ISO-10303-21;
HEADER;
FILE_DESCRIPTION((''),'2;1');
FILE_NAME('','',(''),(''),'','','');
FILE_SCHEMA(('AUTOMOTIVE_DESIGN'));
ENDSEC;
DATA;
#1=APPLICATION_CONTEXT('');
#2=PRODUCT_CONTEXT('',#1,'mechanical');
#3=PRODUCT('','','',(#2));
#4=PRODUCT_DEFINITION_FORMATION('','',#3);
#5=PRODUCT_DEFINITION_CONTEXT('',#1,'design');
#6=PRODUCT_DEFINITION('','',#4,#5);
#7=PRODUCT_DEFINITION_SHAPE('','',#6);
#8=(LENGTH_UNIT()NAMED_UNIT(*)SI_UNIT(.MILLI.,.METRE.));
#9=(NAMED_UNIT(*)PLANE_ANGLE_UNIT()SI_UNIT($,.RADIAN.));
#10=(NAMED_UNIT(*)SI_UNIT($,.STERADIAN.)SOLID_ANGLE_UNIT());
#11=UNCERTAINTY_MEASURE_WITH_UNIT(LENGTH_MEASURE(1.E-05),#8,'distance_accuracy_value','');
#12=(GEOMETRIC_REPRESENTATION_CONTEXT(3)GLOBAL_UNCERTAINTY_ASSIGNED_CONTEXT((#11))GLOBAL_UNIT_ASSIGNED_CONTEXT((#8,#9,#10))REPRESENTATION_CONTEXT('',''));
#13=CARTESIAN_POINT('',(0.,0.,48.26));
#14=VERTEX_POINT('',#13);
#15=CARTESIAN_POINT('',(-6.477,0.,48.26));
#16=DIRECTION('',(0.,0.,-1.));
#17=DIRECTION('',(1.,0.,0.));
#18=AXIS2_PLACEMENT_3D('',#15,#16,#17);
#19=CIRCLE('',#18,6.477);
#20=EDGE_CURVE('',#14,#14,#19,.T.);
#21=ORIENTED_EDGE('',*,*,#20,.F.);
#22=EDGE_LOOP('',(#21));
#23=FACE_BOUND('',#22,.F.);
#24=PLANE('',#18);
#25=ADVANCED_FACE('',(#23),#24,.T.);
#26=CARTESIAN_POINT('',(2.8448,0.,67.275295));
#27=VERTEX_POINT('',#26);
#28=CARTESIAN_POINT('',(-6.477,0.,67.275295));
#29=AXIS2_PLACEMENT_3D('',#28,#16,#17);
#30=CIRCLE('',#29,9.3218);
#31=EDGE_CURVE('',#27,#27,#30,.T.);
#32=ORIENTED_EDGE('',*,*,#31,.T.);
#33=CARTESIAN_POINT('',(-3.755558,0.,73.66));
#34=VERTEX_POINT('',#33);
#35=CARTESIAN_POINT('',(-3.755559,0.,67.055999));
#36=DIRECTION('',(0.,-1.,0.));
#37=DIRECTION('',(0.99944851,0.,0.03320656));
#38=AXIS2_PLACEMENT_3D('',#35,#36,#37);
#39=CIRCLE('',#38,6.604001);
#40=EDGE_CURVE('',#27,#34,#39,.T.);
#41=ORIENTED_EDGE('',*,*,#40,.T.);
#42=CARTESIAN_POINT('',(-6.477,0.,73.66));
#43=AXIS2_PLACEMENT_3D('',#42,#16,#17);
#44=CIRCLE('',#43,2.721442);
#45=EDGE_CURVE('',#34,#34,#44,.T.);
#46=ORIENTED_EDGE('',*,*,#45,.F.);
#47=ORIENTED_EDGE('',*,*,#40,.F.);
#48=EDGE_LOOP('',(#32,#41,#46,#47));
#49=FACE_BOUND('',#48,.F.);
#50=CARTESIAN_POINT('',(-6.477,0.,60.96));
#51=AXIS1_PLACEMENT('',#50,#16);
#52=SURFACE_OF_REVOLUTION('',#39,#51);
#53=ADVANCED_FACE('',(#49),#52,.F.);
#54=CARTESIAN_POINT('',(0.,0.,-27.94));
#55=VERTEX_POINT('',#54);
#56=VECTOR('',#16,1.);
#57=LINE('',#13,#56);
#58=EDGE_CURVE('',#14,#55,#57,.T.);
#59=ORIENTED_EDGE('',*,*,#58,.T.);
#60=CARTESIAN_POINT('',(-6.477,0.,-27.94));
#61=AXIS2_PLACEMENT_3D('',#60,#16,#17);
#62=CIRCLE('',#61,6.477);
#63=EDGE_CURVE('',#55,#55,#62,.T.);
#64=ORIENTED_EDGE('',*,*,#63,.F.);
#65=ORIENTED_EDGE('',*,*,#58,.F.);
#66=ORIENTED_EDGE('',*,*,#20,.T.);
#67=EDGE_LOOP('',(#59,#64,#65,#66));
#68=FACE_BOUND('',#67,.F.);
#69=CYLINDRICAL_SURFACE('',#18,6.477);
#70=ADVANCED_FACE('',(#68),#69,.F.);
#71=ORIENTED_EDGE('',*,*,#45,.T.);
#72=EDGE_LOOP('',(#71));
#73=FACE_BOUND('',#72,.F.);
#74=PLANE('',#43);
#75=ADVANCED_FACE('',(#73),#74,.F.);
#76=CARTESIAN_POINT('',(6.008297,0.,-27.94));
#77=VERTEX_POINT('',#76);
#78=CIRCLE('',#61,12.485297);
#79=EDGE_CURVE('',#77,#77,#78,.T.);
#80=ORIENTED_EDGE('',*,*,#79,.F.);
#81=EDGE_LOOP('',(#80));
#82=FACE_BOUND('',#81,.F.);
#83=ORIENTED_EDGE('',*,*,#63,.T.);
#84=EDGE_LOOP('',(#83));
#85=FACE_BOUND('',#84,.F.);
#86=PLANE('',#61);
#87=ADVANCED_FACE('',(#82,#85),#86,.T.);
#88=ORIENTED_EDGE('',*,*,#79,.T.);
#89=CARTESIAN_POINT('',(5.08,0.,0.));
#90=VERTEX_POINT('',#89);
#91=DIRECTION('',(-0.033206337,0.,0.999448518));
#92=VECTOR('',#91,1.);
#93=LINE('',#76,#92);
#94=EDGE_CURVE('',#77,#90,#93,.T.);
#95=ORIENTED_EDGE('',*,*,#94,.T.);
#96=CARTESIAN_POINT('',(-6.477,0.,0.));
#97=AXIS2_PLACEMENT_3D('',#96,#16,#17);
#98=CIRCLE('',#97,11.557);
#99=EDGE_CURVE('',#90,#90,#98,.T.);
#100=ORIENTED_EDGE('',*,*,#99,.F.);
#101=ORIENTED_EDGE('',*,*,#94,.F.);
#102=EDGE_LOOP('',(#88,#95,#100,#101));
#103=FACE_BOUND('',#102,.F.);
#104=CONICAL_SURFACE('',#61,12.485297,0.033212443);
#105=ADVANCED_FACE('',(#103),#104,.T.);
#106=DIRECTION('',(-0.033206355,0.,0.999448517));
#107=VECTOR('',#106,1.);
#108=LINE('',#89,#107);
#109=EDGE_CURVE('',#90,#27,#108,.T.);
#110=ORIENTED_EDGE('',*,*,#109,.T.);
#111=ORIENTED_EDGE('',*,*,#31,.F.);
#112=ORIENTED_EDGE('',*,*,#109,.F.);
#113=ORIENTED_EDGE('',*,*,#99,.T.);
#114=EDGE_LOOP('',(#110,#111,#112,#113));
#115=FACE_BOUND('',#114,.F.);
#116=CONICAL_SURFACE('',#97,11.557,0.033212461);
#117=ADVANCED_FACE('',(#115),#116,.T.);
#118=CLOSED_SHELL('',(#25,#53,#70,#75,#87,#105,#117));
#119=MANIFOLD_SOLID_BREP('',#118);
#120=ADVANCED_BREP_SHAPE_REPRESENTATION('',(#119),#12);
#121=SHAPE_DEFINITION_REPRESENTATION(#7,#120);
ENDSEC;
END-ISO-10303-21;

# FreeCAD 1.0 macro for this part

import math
import FreeCAD as App
import Part
import Sketcher

V = App.Vector
Q = App.Units.Quantity

doc = App.newDocument("Part")
body = doc.addObject("PartDesign::Body", "Body")

# Sketch on XZ plane
sketch1 = body.newObject("Sketcher::SketchObject", "Sketch")
sketch1.AttachmentSupport = (doc.getObject("XZ_Plane"), [""])
sketch1.MapMode = "FlatFace"
sketch1.addGeometry(Part.LineSegment(V(0, 48.3, 0), V(0, -27.9, 0)), False)
sketch1.addGeometry(Part.LineSegment(V(0, -27.9, 0), V(6, -27.9, 0)), False)
sketch1.addGeometry(Part.LineSegment(V(6, -27.9, 0), V(5.1, 0, 0)), False)
sketch1.addGeometry(Part.LineSegment(V(5.1, 0, 0), V(2.8, 67.3, 0)), False)
sketch1.addGeometry(Part.ArcOfCircle(Part.Circle(V(-3.8, 67.1, 0), V(0, 0, 1), 6.6), math.radians(2), math.radians(90)), False)
sketch1.addGeometry(Part.LineSegment(V(-3.8, 73.7, 0), V(-6.5, 73.7, 0)), False)
sketch1.addGeometry(Part.LineSegment(V(-6.5, 73.7, 0), V(-6.5, 48.3, 0)), False)
sketch1.addGeometry(Part.LineSegment(V(-6.5, 48.3, 0), V(0, 48.3, 0)), False)
sketch1.addGeometry(Part.LineSegment(V(-6.5, 73.7, 0), V(-6.5, -27.9, 0)), True)  # axis
sketch1.addConstraint(Sketcher.Constraint("Coincident", 0, 2, 1, 1))
sketch1.addConstraint(Sketcher.Constraint("Coincident", 1, 2, 2, 1))
sketch1.addConstraint(Sketcher.Constraint("Coincident", 2, 2, 3, 1))
sketch1.addConstraint(Sketcher.Constraint("Tangent", 3, 2, 4, 1))
sketch1.addConstraint(Sketcher.Constraint("Tangent", 4, 2, 5, 1))
sketch1.addConstraint(Sketcher.Constraint("Coincident", 5, 2, 6, 1))
sketch1.addConstraint(Sketcher.Constraint("Coincident", 6, 2, 7, 1))
sketch1.addConstraint(Sketcher.Constraint("Coincident", 7, 2, 0, 1))
sketch1.addConstraint(Sketcher.Constraint("Vertical", 0))
sketch1.addConstraint(Sketcher.Constraint("Horizontal", 1))
sketch1.addConstraint(Sketcher.Constraint("Horizontal", 5))
sketch1.addConstraint(Sketcher.Constraint("Vertical", 6))
sketch1.addConstraint(Sketcher.Constraint("Horizontal", 7))
sketch1.addConstraint(Sketcher.Constraint("Vertical", 8))
sketch1.addConstraint(Sketcher.Constraint("Coincident", 8, 1, 5, 2))
sketch1.addConstraint(Sketcher.Constraint("PointOnObject", 0, 2, -2))
sketch1.addConstraint(Sketcher.Constraint("PointOnObject", 2, 2, -1))
sketch1.addConstraint(Sketcher.Constraint("Parallel", 2, 3))
sketch1.addConstraint(Sketcher.Constraint("Horizontal", 1, 2, 8, 2))
sketch1.addConstraint(Sketcher.Constraint("DistanceY", 0, 2, 0, 1, Q("3 in")))
sketch1.addConstraint(Sketcher.Constraint("DistanceY", 6, 2, 6, 1, Q("1 in")))
sketch1.addConstraint(Sketcher.Constraint("Radius", 4, Q("0.26 in")))
sketch1.addConstraint(Sketcher.Constraint("DistanceY", 0, 2, -1, 1, Q("1.1 in")))
sketch1.addConstraint(Sketcher.Constraint("DistanceX", -1, 1, 2, 2, Q("0.2 in")))
sketch1.addConstraint(Sketcher.Constraint("DistanceX", 7, 1, 7, 2, Q("0.255 in")))
sketch1.addConstraint(Sketcher.Constraint("DistanceX", -1, 1, 3, 2, Q("0.112 in")))
revolution = body.newObject("PartDesign::Revolution", "Revolution")
revolution.Profile = sketch1
revolution.ReferenceAxis = (sketch1, ["Axis0"])
revolution.Angle = 360

doc.recompute()
